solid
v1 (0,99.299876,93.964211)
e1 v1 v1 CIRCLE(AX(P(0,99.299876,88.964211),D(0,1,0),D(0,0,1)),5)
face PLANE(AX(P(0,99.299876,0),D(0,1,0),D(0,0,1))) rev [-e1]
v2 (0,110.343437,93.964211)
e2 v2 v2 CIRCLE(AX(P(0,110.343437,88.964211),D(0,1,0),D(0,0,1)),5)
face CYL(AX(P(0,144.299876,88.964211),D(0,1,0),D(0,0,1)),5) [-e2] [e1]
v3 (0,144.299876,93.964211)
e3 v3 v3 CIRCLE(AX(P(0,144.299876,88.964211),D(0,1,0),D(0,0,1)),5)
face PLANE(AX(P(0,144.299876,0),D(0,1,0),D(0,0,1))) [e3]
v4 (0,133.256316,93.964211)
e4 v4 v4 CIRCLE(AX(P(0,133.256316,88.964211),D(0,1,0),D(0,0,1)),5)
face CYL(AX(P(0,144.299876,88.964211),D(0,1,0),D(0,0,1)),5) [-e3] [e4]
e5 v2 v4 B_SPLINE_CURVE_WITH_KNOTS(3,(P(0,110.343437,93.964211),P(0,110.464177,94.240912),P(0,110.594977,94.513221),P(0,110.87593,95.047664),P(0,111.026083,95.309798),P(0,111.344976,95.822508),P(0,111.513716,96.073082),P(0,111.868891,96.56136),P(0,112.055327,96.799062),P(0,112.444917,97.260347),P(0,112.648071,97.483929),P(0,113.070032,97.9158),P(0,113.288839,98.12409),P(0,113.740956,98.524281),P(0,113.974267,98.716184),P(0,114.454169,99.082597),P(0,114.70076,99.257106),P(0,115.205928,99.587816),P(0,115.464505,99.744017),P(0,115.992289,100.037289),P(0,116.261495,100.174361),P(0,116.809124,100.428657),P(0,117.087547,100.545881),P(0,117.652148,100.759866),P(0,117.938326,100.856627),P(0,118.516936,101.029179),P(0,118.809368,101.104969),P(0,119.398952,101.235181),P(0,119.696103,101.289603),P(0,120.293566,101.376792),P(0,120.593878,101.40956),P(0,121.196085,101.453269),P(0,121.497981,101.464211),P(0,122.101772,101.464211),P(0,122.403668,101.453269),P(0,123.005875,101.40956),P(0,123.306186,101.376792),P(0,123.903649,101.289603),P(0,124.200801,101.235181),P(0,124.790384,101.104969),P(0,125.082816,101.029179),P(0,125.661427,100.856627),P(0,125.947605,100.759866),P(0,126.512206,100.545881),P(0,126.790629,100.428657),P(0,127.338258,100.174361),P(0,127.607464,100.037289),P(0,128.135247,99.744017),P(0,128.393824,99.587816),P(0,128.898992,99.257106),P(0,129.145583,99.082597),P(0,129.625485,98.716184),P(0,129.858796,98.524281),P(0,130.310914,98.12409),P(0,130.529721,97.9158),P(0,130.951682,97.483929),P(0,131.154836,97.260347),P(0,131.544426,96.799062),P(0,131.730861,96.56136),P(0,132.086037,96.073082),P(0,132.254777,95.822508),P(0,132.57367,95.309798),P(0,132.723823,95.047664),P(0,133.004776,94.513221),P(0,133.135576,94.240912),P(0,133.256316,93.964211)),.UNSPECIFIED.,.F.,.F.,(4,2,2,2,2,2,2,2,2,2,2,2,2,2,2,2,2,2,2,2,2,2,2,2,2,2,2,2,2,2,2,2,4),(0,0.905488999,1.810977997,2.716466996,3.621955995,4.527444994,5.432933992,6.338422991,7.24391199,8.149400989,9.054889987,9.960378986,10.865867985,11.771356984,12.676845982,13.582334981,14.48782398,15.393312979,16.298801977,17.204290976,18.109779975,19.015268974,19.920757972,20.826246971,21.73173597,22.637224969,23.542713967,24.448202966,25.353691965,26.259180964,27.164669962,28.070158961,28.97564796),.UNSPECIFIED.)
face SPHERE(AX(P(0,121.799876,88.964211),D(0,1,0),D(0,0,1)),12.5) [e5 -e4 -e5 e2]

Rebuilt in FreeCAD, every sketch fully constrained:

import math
import FreeCAD as App
import Part
import Sketcher
Q = App.Units.Quantity

doc = App.newDocument("Part")
params = doc.addObject("Spreadsheet::Sheet", "Params")
for row, (alias, value) in enumerate([
    ("sketch1_radius", "12.5 mm"),
    ("sketch1_width", "45 mm"),
    ("sketch1_height", "5 mm"),
    ("revolution_angle", "360 deg"),
], start=1):
    params.set(f"A{row}", alias)
    params.set(f"B{row}", "=" + value)
    params.setAlias(f"B{row}", alias)

body = doc.addObject("PartDesign::Body", "Body")

sketch1 = body.newObject("Sketcher::SketchObject", "Sketch")
sketch1.AttachmentSupport = (doc.getObject("YZ_Plane"), [""])
sketch1.MapMode = "FlatFace"
sketch1.addGeometry([
    Part.ArcOfCircle(Part.Circle(App.Vector(122, 89, 0), App.Vector(0, 0, 1), 12), math.radians(24), math.radians(156)),
    Part.LineSegment(App.Vector(110, 94, 0), App.Vector(99, 94, 0)),
    Part.LineSegment(App.Vector(99, 94, 0), App.Vector(99, 89, 0)),
    Part.LineSegment(App.Vector(99, 89, 0), App.Vector(144, 89, 0)),
    Part.LineSegment(App.Vector(144, 89, 0), App.Vector(144, 94, 0)),
    Part.LineSegment(App.Vector(144, 94, 0), App.Vector(133, 94, 0)),
], False)
sketch1.addGeometry(Part.LineSegment(App.Vector(144, 89, 0), App.Vector(99, 89, 0)), True)
sketch1.addConstraint([
    Sketcher.Constraint("Coincident", 0, 2, 1, 1),
    Sketcher.Constraint("Coincident", 1, 2, 2, 1),
    Sketcher.Constraint("Coincident", 2, 2, 3, 1),
    Sketcher.Constraint("Coincident", 3, 2, 4, 1),
    Sketcher.Constraint("Coincident", 4, 2, 5, 1),
    Sketcher.Constraint("Coincident", 5, 2, 0, 1),
    Sketcher.Constraint("Horizontal", 1),
    Sketcher.Constraint("Vertical", 2),
    Sketcher.Constraint("Horizontal", 3),
    Sketcher.Constraint("Vertical", 4),
    Sketcher.Constraint("Horizontal", 5),
    Sketcher.Constraint("Horizontal", 6),
    Sketcher.Constraint("Coincident", 6, 1, 3, 2),
    Sketcher.Constraint("Horizontal", 0, 3, 2, 2),
    Sketcher.Constraint("Horizontal", 1, 2, 4, 2),
    Sketcher.Constraint("Vertical", 1, 2, 6, 2),
    Sketcher.Constraint("Equal", 1, 5),
    Sketcher.Constraint("Radius", 0, Q("12.5 mm")),
    Sketcher.Constraint("DistanceX", 3, 1, 3, 2, Q("45 mm")),
    Sketcher.Constraint("DistanceY", 2, 2, 2, 1, Q("5 mm")),
    Sketcher.Constraint("DistanceY", -1, 1, 0, 3, Q("88.964211 mm")),
    Sketcher.Constraint("DistanceX", -1, 1, 0, 3, Q("121.799876 mm")),
])
sketch1.setExpression("Constraints[17]", "Params.sketch1_radius")
sketch1.setExpression("Constraints[18]", "Params.sketch1_width")
sketch1.setExpression("Constraints[19]", "Params.sketch1_height")
revolution = body.newObject("PartDesign::Revolution", "Revolution")
revolution.Profile = sketch1
revolution.ReferenceAxis = (sketch1, ["Axis0"])
revolution.setExpression("Angle", "Params.revolution_angle")

doc.recompute()
